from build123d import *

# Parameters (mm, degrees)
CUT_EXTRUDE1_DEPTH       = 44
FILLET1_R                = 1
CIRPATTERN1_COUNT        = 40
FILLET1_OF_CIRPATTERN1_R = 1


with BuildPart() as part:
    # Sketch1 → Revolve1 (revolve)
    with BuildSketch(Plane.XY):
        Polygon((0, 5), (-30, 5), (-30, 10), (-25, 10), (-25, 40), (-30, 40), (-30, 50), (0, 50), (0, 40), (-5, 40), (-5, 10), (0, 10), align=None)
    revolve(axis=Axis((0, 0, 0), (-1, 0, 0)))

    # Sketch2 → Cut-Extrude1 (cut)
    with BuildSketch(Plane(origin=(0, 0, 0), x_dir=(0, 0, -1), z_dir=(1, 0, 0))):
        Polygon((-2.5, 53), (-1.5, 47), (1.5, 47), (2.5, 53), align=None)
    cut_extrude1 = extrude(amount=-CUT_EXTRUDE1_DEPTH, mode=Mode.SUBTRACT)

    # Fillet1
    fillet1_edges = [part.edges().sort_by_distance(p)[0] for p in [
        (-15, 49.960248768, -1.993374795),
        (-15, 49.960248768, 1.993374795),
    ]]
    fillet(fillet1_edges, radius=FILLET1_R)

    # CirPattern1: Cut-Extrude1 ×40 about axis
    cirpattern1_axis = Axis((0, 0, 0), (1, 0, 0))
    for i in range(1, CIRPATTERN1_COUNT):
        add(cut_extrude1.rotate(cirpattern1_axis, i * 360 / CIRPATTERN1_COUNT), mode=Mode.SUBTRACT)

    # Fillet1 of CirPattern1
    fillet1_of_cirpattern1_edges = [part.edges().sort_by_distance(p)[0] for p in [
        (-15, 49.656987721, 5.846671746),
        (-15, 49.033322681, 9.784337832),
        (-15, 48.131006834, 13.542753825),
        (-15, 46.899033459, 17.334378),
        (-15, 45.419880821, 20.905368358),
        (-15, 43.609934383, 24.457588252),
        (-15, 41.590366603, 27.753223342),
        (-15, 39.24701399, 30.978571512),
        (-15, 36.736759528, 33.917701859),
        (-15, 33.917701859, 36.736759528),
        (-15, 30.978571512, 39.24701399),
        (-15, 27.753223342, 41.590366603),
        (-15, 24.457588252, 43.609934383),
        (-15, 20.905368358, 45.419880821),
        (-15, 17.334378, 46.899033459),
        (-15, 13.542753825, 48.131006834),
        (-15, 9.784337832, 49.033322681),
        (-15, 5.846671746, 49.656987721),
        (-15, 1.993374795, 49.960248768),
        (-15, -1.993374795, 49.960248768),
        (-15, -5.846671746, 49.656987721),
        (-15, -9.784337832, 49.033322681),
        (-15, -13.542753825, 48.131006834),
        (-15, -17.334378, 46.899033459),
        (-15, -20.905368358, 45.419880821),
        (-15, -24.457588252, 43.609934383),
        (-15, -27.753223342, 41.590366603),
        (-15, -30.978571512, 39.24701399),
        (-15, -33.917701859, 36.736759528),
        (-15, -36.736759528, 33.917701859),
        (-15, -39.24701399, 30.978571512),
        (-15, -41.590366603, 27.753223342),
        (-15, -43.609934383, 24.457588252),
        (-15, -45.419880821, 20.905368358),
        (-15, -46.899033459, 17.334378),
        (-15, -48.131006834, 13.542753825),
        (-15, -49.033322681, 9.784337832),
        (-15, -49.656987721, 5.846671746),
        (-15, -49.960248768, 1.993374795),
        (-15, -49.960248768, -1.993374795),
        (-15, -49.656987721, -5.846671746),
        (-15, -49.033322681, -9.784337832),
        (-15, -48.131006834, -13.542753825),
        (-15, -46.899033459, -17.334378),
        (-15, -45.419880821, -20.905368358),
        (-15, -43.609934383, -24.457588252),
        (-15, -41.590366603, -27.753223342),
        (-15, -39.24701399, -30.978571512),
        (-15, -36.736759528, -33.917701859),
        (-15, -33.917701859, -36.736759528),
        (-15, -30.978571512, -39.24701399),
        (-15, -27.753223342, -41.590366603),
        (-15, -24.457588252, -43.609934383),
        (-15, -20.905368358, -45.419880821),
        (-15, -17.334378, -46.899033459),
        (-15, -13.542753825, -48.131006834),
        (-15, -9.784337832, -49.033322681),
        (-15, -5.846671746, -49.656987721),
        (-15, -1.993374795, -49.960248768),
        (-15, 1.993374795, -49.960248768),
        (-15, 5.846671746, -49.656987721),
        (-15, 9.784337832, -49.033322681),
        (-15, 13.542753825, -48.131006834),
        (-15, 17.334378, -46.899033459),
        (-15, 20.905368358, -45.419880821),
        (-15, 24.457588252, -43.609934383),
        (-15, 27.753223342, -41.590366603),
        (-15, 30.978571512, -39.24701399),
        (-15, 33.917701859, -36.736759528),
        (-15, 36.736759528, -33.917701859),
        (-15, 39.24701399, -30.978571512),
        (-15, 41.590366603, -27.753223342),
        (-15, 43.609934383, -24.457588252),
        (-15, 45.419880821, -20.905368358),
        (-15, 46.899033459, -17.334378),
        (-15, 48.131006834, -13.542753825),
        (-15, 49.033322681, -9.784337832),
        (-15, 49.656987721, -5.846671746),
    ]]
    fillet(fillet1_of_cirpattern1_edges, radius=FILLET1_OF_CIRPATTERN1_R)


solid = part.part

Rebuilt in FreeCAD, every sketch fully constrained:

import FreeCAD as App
import Part
import Sketcher

V = App.Vector
Q = App.Units.Quantity


def edges_at(feature, points):
    """Names of the edges that pass closest to the given points."""
    edges = feature.Shape.Edges
    near = lambda p: min(range(len(edges)), key=lambda i: edges[i].distToShape(Part.Vertex(*p))[0])
    return sorted({f"Edge{near(p) + 1}" for p in points})

doc = App.newDocument("Part")
body = doc.addObject("PartDesign::Body", "Body")

# Sketch on XY plane
sketch1 = body.newObject("Sketcher::SketchObject", "Sketch")
sketch1.AttachmentSupport = (doc.getObject("XY_Plane"), [""])
sketch1.MapMode = "FlatFace"
sketch1.addGeometry([
    Part.LineSegment(V(-30, 5, 0), V(0, 5, 0)),  # 0
    Part.LineSegment(V(0, 5, 0), V(0, 10, 0)),  # 1
    Part.LineSegment(V(0, 10, 0), V(-5, 10, 0)),  # 2
    Part.LineSegment(V(-5, 10, 0), V(-5, 40, 0)),  # 3
    Part.LineSegment(V(-5, 40, 0), V(0, 40, 0)),  # 4
    Part.LineSegment(V(0, 40, 0), V(0, 50, 0)),  # 5
    Part.LineSegment(V(0, 50, 0), V(-30, 50, 0)),  # 6
    Part.LineSegment(V(-30, 50, 0), V(-30, 40, 0)),  # 7
    Part.LineSegment(V(-30, 40, 0), V(-25, 40, 0)),  # 8
    Part.LineSegment(V(-25, 40, 0), V(-25, 10, 0)),  # 9
    Part.LineSegment(V(-25, 10, 0), V(-30, 10, 0)),  # 10
    Part.LineSegment(V(-30, 10, 0), V(-30, 5, 0)),  # 11
], False)
sketch1.addConstraint([
    Sketcher.Constraint("Coincident", 0, 2, 1, 1),
    Sketcher.Constraint("Coincident", 1, 2, 2, 1),
    Sketcher.Constraint("Coincident", 2, 2, 3, 1),
    Sketcher.Constraint("Coincident", 3, 2, 4, 1),
    Sketcher.Constraint("Coincident", 4, 2, 5, 1),
    Sketcher.Constraint("Coincident", 5, 2, 6, 1),
    Sketcher.Constraint("Coincident", 6, 2, 7, 1),
    Sketcher.Constraint("Coincident", 7, 2, 8, 1),
    Sketcher.Constraint("Coincident", 8, 2, 9, 1),
    Sketcher.Constraint("Coincident", 9, 2, 10, 1),
    Sketcher.Constraint("Coincident", 10, 2, 11, 1),
    Sketcher.Constraint("Coincident", 11, 2, 0, 1),
    Sketcher.Constraint("Horizontal", 0),
    Sketcher.Constraint("Vertical", 1),
    Sketcher.Constraint("Horizontal", 2),
    Sketcher.Constraint("Vertical", 3),
    Sketcher.Constraint("Horizontal", 4),
    Sketcher.Constraint("Vertical", 5),
    Sketcher.Constraint("Horizontal", 6),
    Sketcher.Constraint("Vertical", 7),
    Sketcher.Constraint("Horizontal", 8),
    Sketcher.Constraint("Vertical", 9),
    Sketcher.Constraint("Horizontal", 10),
    Sketcher.Constraint("Vertical", 11),
    Sketcher.Constraint("PointOnObject", 0, 2, -2),
    Sketcher.Constraint("PointOnObject", 4, 2, -2),
    Sketcher.Constraint("Horizontal", 4, 2, 7, 2),
    Sketcher.Constraint("Horizontal", 2, 2, 9, 2),
    Sketcher.Constraint("Vertical", 7, 2, 10, 2),
    Sketcher.Constraint("Equal", 4, 8),
    Sketcher.Constraint("Equal", 10, 1),
    Sketcher.Constraint("Equal", 6, 3),
    Sketcher.Constraint("DistanceX", 0, 1, 0, 2, Q("30 mm")),
    Sketcher.Constraint("DistanceX", 2, 2, 2, 1, Q("5 mm")),
    Sketcher.Constraint("DistanceY", 5, 1, 5, 2, Q("10 mm")),
    Sketcher.Constraint("DistanceY", -1, 1, 0, 2, Q("5 mm")),
])
revolution = body.newObject("PartDesign::Revolution", "Revolution")
revolution.Profile = sketch1
revolution.ReferenceAxis = (sketch1, ["H_Axis"])
revolution.Angle = 360

# Sketch on YZ plane
sketch2 = body.newObject("Sketcher::SketchObject", "Sketch001")
sketch2.AttachmentSupport = (doc.getObject("YZ_Plane"), [""])
sketch2.MapMode = "FlatFace"
sketch2.addGeometry([
    Part.LineSegment(V(53, 2.5, 0), V(47, 1.5, 0)),
    Part.LineSegment(V(47, 1.5, 0), V(47, -1.5, 0)),
    Part.LineSegment(V(47, -1.5, 0), V(53, -2.5, 0)),
    Part.LineSegment(V(53, -2.5, 0), V(53, 2.5, 0)),
], False)
sketch2.addConstraint([
    Sketcher.Constraint("Coincident", 0, 2, 1, 1),
    Sketcher.Constraint("Coincident", 1, 2, 2, 1),
    Sketcher.Constraint("Coincident", 2, 2, 3, 1),
    Sketcher.Constraint("Coincident", 3, 2, 0, 1),
    Sketcher.Constraint("Vertical", 1),
    Sketcher.Constraint("Vertical", 3),
    Sketcher.Constraint("Equal", 0, 2),
    Sketcher.Constraint("DistanceY", 1, 2, 1, 1, Q("3 mm")),
    Sketcher.Constraint("DistanceY", 3, 1, 3, 2, Q("5 mm")),
    Sketcher.Constraint("DistanceX", -1, 1, 0, 2, Q("47 mm")),
    Sketcher.Constraint("DistanceX", -1, 1, 2, 2, Q("53 mm")),
    Sketcher.Constraint("DistanceY", -1, 1, 0, 2, Q("1.5 mm")),
])
pocket1 = body.newObject("PartDesign::Pocket", "Pocket")
pocket1.Profile = sketch2
pocket1.Length = 44
doc.recompute()

fillet = body.newObject("PartDesign::Fillet", "Fillet")
fillet.Base = (pocket1, edges_at(pocket1, [(-15, 49.96, -1.993), (-15, 49.96, 1.993)]))
fillet.Radius = 1
doc.recompute()

polarpattern = body.newObject("PartDesign::PolarPattern", "PolarPattern")
polarpattern.Originals = [pocket1]
polarpattern.Axis = (doc.getObject("X_Axis"), [""])
polarpattern.Angle = 360
polarpattern.Occurrences = 40
body.Tip = polarpattern
doc.recompute()

fillet2 = body.newObject("PartDesign::Fillet", "Fillet001")
fillet2.Base = (polarpattern, edges_at(polarpattern, [
    (-15, 49.657, 5.847),
    (-15, 49.033, 9.784),
    (-15, 48.131, 13.543),
    (-15, 46.899, 17.334),
    (-15, 45.42, 20.905),
    (-15, 43.61, 24.458),
    (-15, 41.59, 27.753),
    (-15, 39.247, 30.979),
    (-15, 36.737, 33.918),
    (-15, 33.918, 36.737),
    (-15, 30.979, 39.247),
    (-15, 27.753, 41.59),
    (-15, 24.458, 43.61),
    (-15, 20.905, 45.42),
    (-15, 17.334, 46.899),
    (-15, 13.543, 48.131),
    (-15, 9.784, 49.033),
    (-15, 5.847, 49.657),
    (-15, 1.993, 49.96),
    (-15, -1.993, 49.96),
    (-15, -5.847, 49.657),
    (-15, -9.784, 49.033),
    (-15, -13.543, 48.131),
    (-15, -17.334, 46.899),
    (-15, -20.905, 45.42),
    (-15, -24.458, 43.61),
    (-15, -27.753, 41.59),
    (-15, -30.979, 39.247),
    (-15, -33.918, 36.737),
    (-15, -36.737, 33.918),
    (-15, -39.247, 30.979),
    (-15, -41.59, 27.753),
    (-15, -43.61, 24.458),
    (-15, -45.42, 20.905),
    (-15, -46.899, 17.334),
    (-15, -48.131, 13.543),
    (-15, -49.033, 9.784),
    (-15, -49.657, 5.847),
    (-15, -49.96, 1.993),
    (-15, -49.96, -1.993),
    (-15, -49.657, -5.847),
    (-15, -49.033, -9.784),
    (-15, -48.131, -13.543),
    (-15, -46.899, -17.334),
    (-15, -45.42, -20.905),
    (-15, -43.61, -24.458),
    (-15, -41.59, -27.753),
    (-15, -39.247, -30.979),
    (-15, -36.737, -33.918),
    (-15, -33.918, -36.737),
    (-15, -30.979, -39.247),
    (-15, -27.753, -41.59),
    (-15, -24.458, -43.61),
    (-15, -20.905, -45.42),
    (-15, -17.334, -46.899),
    (-15, -13.543, -48.131),
    (-15, -9.784, -49.033),
    (-15, -5.847, -49.657),
    (-15, -1.993, -49.96),
    (-15, 1.993, -49.96),
    (-15, 5.847, -49.657),
    (-15, 9.784, -49.033),
    (-15, 13.543, -48.131),
    (-15, 17.334, -46.899),
    (-15, 20.905, -45.42),
    (-15, 24.458, -43.61),
    (-15, 27.753, -41.59),
    (-15, 30.979, -39.247),
    (-15, 33.918, -36.737),
    (-15, 36.737, -33.918),
    (-15, 39.247, -30.979),
    (-15, 41.59, -27.753),
    (-15, 43.61, -24.458),
    (-15, 45.42, -20.905),
    (-15, 46.899, -17.334),
    (-15, 48.131, -13.543),
    (-15, 49.033, -9.784),
    (-15, 49.657, -5.847),
]))
fillet2.Radius = 1

doc.recompute()
